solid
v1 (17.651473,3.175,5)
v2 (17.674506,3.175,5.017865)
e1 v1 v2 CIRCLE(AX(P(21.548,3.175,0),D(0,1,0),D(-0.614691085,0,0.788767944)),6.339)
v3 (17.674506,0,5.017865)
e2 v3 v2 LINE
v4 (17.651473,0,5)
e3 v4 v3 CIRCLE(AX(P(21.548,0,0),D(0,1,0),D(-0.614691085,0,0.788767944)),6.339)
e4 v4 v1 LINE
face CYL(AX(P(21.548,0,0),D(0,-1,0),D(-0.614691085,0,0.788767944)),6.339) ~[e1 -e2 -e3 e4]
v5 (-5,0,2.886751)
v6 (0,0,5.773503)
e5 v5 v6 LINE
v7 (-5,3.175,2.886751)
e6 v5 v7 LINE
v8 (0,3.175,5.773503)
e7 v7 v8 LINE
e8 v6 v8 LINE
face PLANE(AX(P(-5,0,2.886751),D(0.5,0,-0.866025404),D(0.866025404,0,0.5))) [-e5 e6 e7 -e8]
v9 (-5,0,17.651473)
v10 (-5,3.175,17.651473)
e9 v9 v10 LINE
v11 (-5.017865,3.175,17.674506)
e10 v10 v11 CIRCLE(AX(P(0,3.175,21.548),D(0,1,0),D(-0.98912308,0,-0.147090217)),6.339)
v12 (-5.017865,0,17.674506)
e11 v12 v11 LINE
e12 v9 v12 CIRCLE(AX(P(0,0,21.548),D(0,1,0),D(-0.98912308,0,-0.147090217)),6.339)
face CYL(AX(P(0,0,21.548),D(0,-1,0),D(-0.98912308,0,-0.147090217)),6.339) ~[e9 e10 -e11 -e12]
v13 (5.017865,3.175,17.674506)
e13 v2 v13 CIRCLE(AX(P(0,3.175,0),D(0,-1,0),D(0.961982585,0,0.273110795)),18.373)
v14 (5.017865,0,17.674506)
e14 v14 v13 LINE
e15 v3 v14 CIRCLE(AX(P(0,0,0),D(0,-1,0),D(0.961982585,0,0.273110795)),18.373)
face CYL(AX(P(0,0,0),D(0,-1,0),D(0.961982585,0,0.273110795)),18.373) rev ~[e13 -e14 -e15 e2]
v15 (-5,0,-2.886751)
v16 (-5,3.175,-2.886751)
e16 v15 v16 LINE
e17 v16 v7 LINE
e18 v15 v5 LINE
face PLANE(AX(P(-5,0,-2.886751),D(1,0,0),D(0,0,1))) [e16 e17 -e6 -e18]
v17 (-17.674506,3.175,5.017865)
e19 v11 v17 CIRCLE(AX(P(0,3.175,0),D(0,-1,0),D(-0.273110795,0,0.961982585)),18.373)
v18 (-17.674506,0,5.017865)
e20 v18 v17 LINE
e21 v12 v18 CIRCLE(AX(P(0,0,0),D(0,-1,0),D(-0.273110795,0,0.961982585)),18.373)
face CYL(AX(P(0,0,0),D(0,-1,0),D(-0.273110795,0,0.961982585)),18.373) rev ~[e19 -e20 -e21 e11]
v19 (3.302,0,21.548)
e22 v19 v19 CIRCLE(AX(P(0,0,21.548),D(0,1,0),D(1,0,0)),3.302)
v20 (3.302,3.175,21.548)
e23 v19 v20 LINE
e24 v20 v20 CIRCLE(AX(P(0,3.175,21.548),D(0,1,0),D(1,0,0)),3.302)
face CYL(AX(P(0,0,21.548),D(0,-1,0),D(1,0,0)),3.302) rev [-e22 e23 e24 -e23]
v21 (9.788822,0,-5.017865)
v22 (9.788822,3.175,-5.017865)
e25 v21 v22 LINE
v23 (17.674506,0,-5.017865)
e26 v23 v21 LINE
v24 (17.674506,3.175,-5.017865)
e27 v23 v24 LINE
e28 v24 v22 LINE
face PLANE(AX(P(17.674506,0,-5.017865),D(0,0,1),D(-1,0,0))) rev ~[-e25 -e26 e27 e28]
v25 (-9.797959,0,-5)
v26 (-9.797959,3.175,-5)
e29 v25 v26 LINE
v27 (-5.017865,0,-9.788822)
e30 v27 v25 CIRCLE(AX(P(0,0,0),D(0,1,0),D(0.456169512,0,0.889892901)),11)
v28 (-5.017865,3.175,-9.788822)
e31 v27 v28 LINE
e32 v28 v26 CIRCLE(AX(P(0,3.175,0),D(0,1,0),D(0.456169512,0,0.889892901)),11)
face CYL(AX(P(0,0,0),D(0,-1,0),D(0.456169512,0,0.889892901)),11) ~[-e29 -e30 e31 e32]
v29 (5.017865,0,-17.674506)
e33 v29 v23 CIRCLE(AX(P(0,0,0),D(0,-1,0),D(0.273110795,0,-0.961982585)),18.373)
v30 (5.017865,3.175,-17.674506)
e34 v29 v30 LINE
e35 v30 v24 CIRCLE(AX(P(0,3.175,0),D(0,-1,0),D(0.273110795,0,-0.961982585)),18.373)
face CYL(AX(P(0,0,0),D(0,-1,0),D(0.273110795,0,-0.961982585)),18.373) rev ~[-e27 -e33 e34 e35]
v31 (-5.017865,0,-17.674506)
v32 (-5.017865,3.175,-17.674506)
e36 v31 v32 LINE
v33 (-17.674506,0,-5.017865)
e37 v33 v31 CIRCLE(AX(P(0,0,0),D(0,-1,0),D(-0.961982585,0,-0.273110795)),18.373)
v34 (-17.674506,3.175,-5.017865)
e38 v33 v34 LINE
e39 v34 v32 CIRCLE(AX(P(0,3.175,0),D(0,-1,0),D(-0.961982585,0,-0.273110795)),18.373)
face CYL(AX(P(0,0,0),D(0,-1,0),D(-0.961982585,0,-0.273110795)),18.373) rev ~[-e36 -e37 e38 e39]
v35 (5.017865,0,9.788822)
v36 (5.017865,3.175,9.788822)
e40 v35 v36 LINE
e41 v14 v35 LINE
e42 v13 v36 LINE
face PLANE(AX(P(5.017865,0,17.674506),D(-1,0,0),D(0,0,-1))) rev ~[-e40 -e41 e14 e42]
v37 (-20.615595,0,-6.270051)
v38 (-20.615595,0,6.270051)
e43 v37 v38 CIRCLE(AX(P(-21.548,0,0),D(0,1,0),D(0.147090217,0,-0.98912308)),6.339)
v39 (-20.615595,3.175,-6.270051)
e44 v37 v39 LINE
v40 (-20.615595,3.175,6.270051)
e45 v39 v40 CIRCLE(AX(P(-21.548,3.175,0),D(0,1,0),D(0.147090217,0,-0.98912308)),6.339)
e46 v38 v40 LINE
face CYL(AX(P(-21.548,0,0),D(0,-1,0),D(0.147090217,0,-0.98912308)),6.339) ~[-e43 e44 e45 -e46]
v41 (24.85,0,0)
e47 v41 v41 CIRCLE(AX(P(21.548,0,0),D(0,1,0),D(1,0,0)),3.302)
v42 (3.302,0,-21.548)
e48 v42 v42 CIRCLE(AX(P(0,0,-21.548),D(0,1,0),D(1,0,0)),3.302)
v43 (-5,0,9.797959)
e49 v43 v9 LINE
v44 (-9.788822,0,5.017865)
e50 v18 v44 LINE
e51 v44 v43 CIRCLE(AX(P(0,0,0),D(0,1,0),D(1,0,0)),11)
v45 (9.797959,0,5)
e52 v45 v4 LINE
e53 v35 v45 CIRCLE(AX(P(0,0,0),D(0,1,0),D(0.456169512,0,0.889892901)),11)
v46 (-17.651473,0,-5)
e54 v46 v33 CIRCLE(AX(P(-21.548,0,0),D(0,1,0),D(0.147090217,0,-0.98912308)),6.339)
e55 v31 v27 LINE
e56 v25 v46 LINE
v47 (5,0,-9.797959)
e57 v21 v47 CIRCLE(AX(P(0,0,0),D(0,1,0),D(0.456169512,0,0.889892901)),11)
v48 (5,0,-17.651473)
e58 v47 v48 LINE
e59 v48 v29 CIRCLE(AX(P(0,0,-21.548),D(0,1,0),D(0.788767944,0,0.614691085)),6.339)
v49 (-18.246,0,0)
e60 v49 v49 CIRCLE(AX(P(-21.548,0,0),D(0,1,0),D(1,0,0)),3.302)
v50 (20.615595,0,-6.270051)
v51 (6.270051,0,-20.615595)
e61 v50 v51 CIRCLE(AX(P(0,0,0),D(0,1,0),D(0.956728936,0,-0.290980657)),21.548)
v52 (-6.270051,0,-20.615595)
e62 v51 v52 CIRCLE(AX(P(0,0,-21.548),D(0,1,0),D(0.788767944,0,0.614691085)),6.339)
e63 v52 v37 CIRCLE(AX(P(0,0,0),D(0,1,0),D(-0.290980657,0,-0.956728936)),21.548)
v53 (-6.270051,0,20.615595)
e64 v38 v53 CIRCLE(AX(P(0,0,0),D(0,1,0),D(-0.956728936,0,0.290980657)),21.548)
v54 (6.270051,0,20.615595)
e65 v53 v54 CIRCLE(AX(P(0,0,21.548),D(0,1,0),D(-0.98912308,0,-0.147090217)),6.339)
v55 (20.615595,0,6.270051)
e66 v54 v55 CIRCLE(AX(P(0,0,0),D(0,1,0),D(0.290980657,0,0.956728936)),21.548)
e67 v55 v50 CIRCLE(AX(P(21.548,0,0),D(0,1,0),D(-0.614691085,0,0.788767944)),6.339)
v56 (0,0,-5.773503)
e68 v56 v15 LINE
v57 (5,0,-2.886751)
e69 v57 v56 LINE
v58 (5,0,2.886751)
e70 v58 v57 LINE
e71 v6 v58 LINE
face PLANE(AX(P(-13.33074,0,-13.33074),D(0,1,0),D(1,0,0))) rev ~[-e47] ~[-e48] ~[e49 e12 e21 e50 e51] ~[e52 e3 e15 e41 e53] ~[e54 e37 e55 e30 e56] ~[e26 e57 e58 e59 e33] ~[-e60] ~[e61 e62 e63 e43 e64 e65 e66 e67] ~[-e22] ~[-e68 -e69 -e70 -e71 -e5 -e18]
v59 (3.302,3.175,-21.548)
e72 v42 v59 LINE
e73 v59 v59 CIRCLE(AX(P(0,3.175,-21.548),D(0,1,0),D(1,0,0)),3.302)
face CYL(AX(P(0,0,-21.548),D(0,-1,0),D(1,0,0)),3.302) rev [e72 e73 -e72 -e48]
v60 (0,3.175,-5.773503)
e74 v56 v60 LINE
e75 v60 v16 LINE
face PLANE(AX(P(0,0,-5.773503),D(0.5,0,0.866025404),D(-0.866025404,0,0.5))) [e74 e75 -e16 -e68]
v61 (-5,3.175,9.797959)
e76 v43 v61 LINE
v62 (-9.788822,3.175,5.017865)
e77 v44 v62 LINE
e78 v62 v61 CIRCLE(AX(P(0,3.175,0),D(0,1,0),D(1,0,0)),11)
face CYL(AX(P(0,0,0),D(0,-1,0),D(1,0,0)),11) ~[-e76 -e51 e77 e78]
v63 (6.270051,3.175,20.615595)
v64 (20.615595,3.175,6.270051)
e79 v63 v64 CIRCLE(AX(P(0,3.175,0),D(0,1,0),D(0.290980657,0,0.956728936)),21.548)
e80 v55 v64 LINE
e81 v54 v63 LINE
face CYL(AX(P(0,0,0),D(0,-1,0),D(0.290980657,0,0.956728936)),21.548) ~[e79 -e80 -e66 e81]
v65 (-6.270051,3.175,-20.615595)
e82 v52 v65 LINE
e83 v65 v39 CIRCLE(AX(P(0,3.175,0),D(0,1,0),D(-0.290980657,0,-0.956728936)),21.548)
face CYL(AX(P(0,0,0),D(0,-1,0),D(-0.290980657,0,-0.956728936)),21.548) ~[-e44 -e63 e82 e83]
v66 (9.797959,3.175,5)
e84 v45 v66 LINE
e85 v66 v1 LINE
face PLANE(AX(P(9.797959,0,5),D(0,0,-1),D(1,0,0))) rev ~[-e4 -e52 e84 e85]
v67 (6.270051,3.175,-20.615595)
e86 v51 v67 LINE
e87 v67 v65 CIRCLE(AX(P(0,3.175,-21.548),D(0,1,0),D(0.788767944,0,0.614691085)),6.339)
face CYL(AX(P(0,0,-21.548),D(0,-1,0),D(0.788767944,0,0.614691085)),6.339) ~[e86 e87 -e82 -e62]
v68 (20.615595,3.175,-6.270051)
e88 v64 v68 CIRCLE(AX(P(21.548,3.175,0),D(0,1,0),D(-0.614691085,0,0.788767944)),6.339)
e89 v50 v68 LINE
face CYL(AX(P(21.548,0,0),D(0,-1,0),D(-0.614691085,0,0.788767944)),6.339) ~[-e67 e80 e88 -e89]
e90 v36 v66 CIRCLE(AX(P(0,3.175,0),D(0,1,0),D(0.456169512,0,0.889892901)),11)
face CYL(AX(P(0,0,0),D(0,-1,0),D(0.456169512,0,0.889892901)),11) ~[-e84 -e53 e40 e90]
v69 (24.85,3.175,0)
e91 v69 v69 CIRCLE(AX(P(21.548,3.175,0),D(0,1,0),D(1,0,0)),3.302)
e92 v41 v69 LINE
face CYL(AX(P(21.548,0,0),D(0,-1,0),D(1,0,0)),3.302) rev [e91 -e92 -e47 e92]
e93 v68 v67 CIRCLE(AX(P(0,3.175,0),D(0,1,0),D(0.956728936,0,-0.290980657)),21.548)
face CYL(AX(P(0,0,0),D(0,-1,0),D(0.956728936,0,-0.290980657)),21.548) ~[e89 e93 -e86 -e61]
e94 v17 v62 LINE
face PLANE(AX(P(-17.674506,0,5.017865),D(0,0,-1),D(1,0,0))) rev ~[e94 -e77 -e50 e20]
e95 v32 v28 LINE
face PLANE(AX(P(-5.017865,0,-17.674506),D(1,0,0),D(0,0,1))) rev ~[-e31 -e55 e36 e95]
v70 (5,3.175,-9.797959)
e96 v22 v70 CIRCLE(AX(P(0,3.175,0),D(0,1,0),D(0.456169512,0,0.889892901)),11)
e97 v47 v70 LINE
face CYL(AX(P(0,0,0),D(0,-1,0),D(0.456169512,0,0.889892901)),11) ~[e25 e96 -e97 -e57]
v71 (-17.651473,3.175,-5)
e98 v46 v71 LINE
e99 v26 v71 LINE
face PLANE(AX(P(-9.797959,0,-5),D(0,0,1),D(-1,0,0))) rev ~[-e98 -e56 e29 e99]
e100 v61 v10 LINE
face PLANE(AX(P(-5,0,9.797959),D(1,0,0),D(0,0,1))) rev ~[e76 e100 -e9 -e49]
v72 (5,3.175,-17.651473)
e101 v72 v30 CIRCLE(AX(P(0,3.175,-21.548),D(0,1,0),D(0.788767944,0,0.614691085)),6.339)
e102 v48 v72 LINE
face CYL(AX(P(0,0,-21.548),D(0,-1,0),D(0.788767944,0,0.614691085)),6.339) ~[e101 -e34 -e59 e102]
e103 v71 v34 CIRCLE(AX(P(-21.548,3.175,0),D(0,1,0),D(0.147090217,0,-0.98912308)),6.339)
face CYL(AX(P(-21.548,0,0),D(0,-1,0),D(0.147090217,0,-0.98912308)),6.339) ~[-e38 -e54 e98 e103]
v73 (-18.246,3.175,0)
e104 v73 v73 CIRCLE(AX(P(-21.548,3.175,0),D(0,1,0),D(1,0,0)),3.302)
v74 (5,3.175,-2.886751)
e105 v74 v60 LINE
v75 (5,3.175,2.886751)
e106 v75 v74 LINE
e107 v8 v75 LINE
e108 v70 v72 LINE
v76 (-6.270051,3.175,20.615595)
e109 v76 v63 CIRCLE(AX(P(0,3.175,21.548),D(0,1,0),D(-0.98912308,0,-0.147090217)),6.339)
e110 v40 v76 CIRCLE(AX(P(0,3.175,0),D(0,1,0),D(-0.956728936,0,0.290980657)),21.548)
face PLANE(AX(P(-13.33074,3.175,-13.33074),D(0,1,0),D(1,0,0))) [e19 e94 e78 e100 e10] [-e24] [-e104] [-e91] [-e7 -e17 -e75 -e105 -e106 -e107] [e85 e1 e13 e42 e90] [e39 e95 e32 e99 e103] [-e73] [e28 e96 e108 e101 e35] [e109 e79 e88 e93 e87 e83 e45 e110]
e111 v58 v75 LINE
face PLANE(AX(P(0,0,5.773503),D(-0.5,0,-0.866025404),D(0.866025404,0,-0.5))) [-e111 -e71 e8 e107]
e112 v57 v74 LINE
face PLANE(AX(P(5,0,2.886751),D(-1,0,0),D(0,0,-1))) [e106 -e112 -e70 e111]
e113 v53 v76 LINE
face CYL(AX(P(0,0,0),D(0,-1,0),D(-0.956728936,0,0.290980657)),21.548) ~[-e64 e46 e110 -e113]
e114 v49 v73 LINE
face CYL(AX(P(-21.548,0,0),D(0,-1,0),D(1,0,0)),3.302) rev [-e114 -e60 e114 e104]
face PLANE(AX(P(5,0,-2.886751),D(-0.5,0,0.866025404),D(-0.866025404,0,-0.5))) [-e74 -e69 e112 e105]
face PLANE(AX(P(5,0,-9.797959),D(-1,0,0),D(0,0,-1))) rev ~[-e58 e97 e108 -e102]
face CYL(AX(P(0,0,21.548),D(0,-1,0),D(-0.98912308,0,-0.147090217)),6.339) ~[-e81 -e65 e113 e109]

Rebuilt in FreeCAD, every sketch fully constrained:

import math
import FreeCAD as App
import Part
import Sketcher
Q = App.Units.Quantity

doc = App.newDocument("Part")
body = doc.addObject("PartDesign::Body", "Body")

sketch1 = body.newObject("Sketcher::SketchObject", "Sketch")
sketch1.AttachmentSupport = (doc.getObject("XZ_Plane"), [""])
sketch1.MapMode = "FlatFace"
sketch1.addGeometry([
    Part.ArcOfCircle(Part.Circle(App.Vector(0, 0, 0), App.Vector(0, 0, 1), 21.548), math.radians(-73.083324), math.radians(-16.916676)),
    Part.ArcOfCircle(Part.Circle(App.Vector(0, -21.548, 0), App.Vector(0, 0, 1), 6.339), math.radians(171.541662), math.radians(368.458338)),
    Part.ArcOfCircle(Part.Circle(App.Vector(0, 0, 0), App.Vector(0, 0, 1), 21.548), math.radians(-163.083324), math.radians(-106.916676)),
    Part.ArcOfCircle(Part.Circle(App.Vector(-21.548, 0, 0), App.Vector(0, 0, 1), 6.339), math.radians(81.541662), math.radians(278.458338)),
    Part.ArcOfCircle(Part.Circle(App.Vector(0, 0, 0), App.Vector(0, 0, 1), 21.548), math.radians(106.916676), math.radians(163.083324)),
    Part.ArcOfCircle(Part.Circle(App.Vector(0, 21.548, 0), App.Vector(0, 0, 1), 6.339), math.radians(-8.458338), math.radians(188.458338)),
    Part.ArcOfCircle(Part.Circle(App.Vector(0, 0, 0), App.Vector(0, 0, 1), 21.548), math.radians(16.916676), math.radians(73.083324)),
    Part.ArcOfCircle(Part.Circle(App.Vector(21.548, 0, 0), App.Vector(0, 0, 1), 6.339), math.radians(-98.458338), math.radians(98.458338)),
    Part.ArcOfCircle(Part.Circle(App.Vector(21.548, 0, 0), App.Vector(0, 0, 1), 6.339), math.radians(127.666012), math.radians(127.929477)),
    Part.ArcOfCircle(Part.Circle(App.Vector(0, 0, 0), App.Vector(0, 0, 1), 18.373), math.radians(15.849461), math.radians(74.150539)),
    Part.LineSegment(App.Vector(5.017865, 17.674506, 0), App.Vector(5.017865, 9.788822, 0)),
    Part.ArcOfCircle(Part.Circle(App.Vector(0, 0, 0), App.Vector(0, 0, 1), 11), math.radians(27.035692), math.radians(62.859792)),
    Part.LineSegment(App.Vector(9.797959, 5, 0), App.Vector(17.651473, 5, 0)),
    Part.Circle(App.Vector(-21.548, 0, 0), App.Vector(0, 0, 1), 3.302),
    Part.LineSegment(App.Vector(-5, 9.797959, 0), App.Vector(-5, 17.651473, 0)),
    Part.ArcOfCircle(Part.Circle(App.Vector(0, 21.548, 0), App.Vector(0, 0, 1), 6.339), math.radians(-142.333988), math.radians(-142.070523)),
    Part.ArcOfCircle(Part.Circle(App.Vector(0, 0, 0), App.Vector(0, 0, 1), 18.373), math.radians(105.849461), math.radians(164.150539)),
    Part.LineSegment(App.Vector(-17.674506, 5.017865, 0), App.Vector(-9.788822, 5.017865, 0)),
    Part.ArcOfCircle(Part.Circle(App.Vector(0, 0, 0), App.Vector(0, 0, 1), 11), math.radians(117.035692), math.radians(152.859792)),
    Part.Circle(App.Vector(0, 21.548, 0), App.Vector(0, 0, 1), 3.302),
    Part.LineSegment(App.Vector(0, -5.773503, 0), App.Vector(5, -2.886751, 0)),
    Part.LineSegment(App.Vector(5, -2.886751, 0), App.Vector(5, 2.886751, 0)),
    Part.LineSegment(App.Vector(5, 2.886751, 0), App.Vector(0, 5.773503, 0)),
    Part.LineSegment(App.Vector(0, 5.773503, 0), App.Vector(-5, 2.886751, 0)),
    Part.LineSegment(App.Vector(-5, 2.886751, 0), App.Vector(-5, -2.886751, 0)),
    Part.LineSegment(App.Vector(-5, -2.886751, 0), App.Vector(0, -5.773503, 0)),
    Part.Circle(App.Vector(21.548, 0, 0), App.Vector(0, 0, 1), 3.302),
    Part.LineSegment(App.Vector(-5.017865, -17.674506, 0), App.Vector(-5.017865, -9.788822, 0)),
    Part.ArcOfCircle(Part.Circle(App.Vector(0, 0, 0), App.Vector(0, 0, 1), 11), math.radians(-152.964308), math.radians(-117.140208)),
    Part.LineSegment(App.Vector(-9.797959, -5, 0), App.Vector(-17.651473, -5, 0)),
    Part.ArcOfCircle(Part.Circle(App.Vector(-21.548, 0, 0), App.Vector(0, 0, 1), 6.339), math.radians(-52.333988), math.radians(-52.070523)),
    Part.ArcOfCircle(Part.Circle(App.Vector(0, 0, 0), App.Vector(0, 0, 1), 18.373), math.radians(-164.150539), math.radians(-105.849461)),
    Part.LineSegment(App.Vector(17.674506, -5.017865, 0), App.Vector(9.788822, -5.017865, 0)),
    Part.ArcOfCircle(Part.Circle(App.Vector(0, 0, 0), App.Vector(0, 0, 1), 11), math.radians(-62.964308), math.radians(-27.140208)),
    Part.LineSegment(App.Vector(5, -9.797959, 0), App.Vector(5, -17.651473, 0)),
    Part.ArcOfCircle(Part.Circle(App.Vector(0, -21.548, 0), App.Vector(0, 0, 1), 6.339), math.radians(37.666012), math.radians(37.929477)),
    Part.ArcOfCircle(Part.Circle(App.Vector(0, 0, 0), App.Vector(0, 0, 1), 18.373), math.radians(-74.150539), math.radians(-15.849461)),
    Part.Circle(App.Vector(0, -21.548, 0), App.Vector(0, 0, 1), 3.302),
], False)
sketch1.addConstraint([
    Sketcher.Constraint("Coincident", 0, 1, 1, 2),
    Sketcher.Constraint("Coincident", 1, 1, 2, 2),
    Sketcher.Constraint("Coincident", 2, 1, 3, 2),
    Sketcher.Constraint("Coincident", 3, 1, 4, 2),
    Sketcher.Constraint("Coincident", 4, 1, 5, 2),
    Sketcher.Constraint("Coincident", 5, 1, 6, 2),
    Sketcher.Constraint("Coincident", 6, 1, 7, 2),
    Sketcher.Constraint("Coincident", 7, 1, 0, 2),
    Sketcher.Constraint("Coincident", 8, 1, 9, 1),
    Sketcher.Constraint("Coincident", 9, 2, 10, 1),
    Sketcher.Constraint("Coincident", 10, 2, 11, 2),
    Sketcher.Constraint("Coincident", 11, 1, 12, 1),
    Sketcher.Constraint("Coincident", 12, 2, 8, 2),
    Sketcher.Constraint("Coincident", 14, 2, 15, 2),
    Sketcher.Constraint("Coincident", 15, 1, 16, 1),
    Sketcher.Constraint("Coincident", 16, 2, 17, 1),
    Sketcher.Constraint("Coincident", 17, 2, 18, 2),
    Sketcher.Constraint("Coincident", 18, 1, 14, 1),
    Sketcher.Constraint("Coincident", 20, 2, 21, 1),
    Sketcher.Constraint("Coincident", 21, 2, 22, 1),
    Sketcher.Constraint("Coincident", 22, 2, 23, 1),
    Sketcher.Constraint("Coincident", 23, 2, 24, 1),
    Sketcher.Constraint("Coincident", 24, 2, 25, 1),
    Sketcher.Constraint("Coincident", 25, 2, 20, 1),
    Sketcher.Constraint("Coincident", 27, 2, 28, 2),
    Sketcher.Constraint("Coincident", 28, 1, 29, 1),
    Sketcher.Constraint("Coincident", 29, 2, 30, 2),
    Sketcher.Constraint("Coincident", 30, 1, 31, 1),
    Sketcher.Constraint("Coincident", 31, 2, 27, 1),
    Sketcher.Constraint("Coincident", 32, 2, 33, 2),
    Sketcher.Constraint("Coincident", 33, 1, 34, 1),
    Sketcher.Constraint("Coincident", 34, 2, 35, 2),
    Sketcher.Constraint("Coincident", 35, 1, 36, 1),
    Sketcher.Constraint("Coincident", 36, 2, 32, 1),
    Sketcher.Constraint("Vertical", 10),
    Sketcher.Constraint("Horizontal", 12),
    Sketcher.Constraint("Vertical", 14),
    Sketcher.Constraint("Horizontal", 17),
    Sketcher.Constraint("Vertical", 21),
    Sketcher.Constraint("Vertical", 24),
    Sketcher.Constraint("Vertical", 27),
    Sketcher.Constraint("Horizontal", 29),
    Sketcher.Constraint("Horizontal", 32),
    Sketcher.Constraint("Vertical", 34),
    Sketcher.Constraint("Coincident", 0, 3, -1, 1),
    Sketcher.Constraint("Coincident", 2, 3, -1, 1),
    Sketcher.Constraint("Coincident", 4, 3, -1, 1),
    Sketcher.Constraint("Coincident", 6, 3, -1, 1),
    Sketcher.Constraint("Coincident", 9, 3, -1, 1),
    Sketcher.Constraint("Coincident", 11, 3, -1, 1),
    Sketcher.Constraint("Coincident", 16, 3, -1, 1),
    Sketcher.Constraint("Coincident", 18, 3, -1, 1),
    Sketcher.Constraint("Coincident", 28, 3, -1, 1),
    Sketcher.Constraint("Coincident", 31, 3, -1, 1),
    Sketcher.Constraint("Coincident", 33, 3, -1, 1),
    Sketcher.Constraint("Coincident", 36, 3, -1, 1),
    Sketcher.Constraint("Coincident", 8, 3, 7, 3),
    Sketcher.Constraint("Coincident", 13, 3, 3, 3),
    Sketcher.Constraint("Coincident", 15, 3, 5, 3),
    Sketcher.Constraint("Coincident", 19, 3, 5, 3),
    Sketcher.Constraint("Coincident", 26, 3, 7, 3),
    Sketcher.Constraint("Coincident", 30, 3, 3, 3),
    Sketcher.Constraint("Coincident", 35, 3, 1, 3),
    Sketcher.Constraint("Coincident", 37, 3, 1, 3),
    Sketcher.Constraint("Equal", 0, 2),
    Sketcher.Constraint("Equal", 1, 3),
    Sketcher.Constraint("Equal", 2, 4),
    Sketcher.Constraint("Equal", 3, 5),
    Sketcher.Constraint("Equal", 4, 6),
    Sketcher.Constraint("Equal", 5, 7),
    Sketcher.Constraint("Equal", 7, 8),
    Sketcher.Constraint("Equal", 8, 15),
    Sketcher.Constraint("Equal", 9, 16),
    Sketcher.Constraint("Equal", 11, 18),
    Sketcher.Constraint("Equal", 13, 19),
    Sketcher.Constraint("Equal", 19, 26),
    Sketcher.Constraint("Equal", 18, 28),
    Sketcher.Constraint("Equal", 15, 30),
    Sketcher.Constraint("Equal", 16, 31),
    Sketcher.Constraint("Equal", 28, 33),
    Sketcher.Constraint("Equal", 30, 35),
    Sketcher.Constraint("Equal", 31, 36),
    Sketcher.Constraint("Equal", 26, 37),
    Sketcher.Constraint("Symmetric", 1, 3, 5, 3, -1, 1),
    Sketcher.Constraint("Symmetric", 3, 3, 7, 3, -1, 1),
    Sketcher.Constraint("Symmetric", 20, 2, 23, 2, -1, 1),
    Sketcher.Constraint("Symmetric", 22, 2, 25, 2, -1, 1),
    Sketcher.Constraint("PointOnObject", 1, 3, -2),
    Sketcher.Constraint("PointOnObject", 3, 3, -1),
    Sketcher.Constraint("PointOnObject", 22, 2, -2),
    Sketcher.Constraint("Parallel", 22, 25),
    Sketcher.Constraint("Horizontal", 9, 2, 15, 1),
    Sketcher.Constraint("Horizontal", 8, 1, 16, 2),
    Sketcher.Constraint("Horizontal", 21, 2, 23, 2),
    Sketcher.Constraint("Horizontal", 30, 1, 32, 2),
    Sketcher.Constraint("Horizontal", 31, 2, 35, 1),
    Sketcher.Constraint("Vertical", 18, 1, 23, 2),
    Sketcher.Constraint("Vertical", 21, 2, 33, 1),
    Sketcher.Constraint("Equal", 12, 29),
    Sketcher.Constraint("Equal", 32, 10),
    Sketcher.Constraint("Equal", 29, 14),
    Sketcher.Constraint("Diameter", 13, Q("0.26 in")),
    Sketcher.Constraint("Angle", 20, Q("30 deg")),
    Sketcher.Constraint("Radius", 0, 21.548),
    Sketcher.Constraint("Radius", 1, 6.339),
    Sketcher.Constraint("Radius", 9, 18.373),
    Sketcher.Constraint("Radius", 11, 11.0),
    Sketcher.Constraint("DistanceY", 1, 3, -1, 1, 21.548),
    Sketcher.Constraint("DistanceY", -1, 1, 11, 1, 5.0),
    Sketcher.Constraint("DistanceY", 21, 1, 21, 2, 5.773503),
])
pad1 = body.newObject("PartDesign::Pad", "Pad")
pad1.Profile = sketch1
pad1.Length = Q("0.125 in")
pad1.Reversed = True

doc.recompute()
